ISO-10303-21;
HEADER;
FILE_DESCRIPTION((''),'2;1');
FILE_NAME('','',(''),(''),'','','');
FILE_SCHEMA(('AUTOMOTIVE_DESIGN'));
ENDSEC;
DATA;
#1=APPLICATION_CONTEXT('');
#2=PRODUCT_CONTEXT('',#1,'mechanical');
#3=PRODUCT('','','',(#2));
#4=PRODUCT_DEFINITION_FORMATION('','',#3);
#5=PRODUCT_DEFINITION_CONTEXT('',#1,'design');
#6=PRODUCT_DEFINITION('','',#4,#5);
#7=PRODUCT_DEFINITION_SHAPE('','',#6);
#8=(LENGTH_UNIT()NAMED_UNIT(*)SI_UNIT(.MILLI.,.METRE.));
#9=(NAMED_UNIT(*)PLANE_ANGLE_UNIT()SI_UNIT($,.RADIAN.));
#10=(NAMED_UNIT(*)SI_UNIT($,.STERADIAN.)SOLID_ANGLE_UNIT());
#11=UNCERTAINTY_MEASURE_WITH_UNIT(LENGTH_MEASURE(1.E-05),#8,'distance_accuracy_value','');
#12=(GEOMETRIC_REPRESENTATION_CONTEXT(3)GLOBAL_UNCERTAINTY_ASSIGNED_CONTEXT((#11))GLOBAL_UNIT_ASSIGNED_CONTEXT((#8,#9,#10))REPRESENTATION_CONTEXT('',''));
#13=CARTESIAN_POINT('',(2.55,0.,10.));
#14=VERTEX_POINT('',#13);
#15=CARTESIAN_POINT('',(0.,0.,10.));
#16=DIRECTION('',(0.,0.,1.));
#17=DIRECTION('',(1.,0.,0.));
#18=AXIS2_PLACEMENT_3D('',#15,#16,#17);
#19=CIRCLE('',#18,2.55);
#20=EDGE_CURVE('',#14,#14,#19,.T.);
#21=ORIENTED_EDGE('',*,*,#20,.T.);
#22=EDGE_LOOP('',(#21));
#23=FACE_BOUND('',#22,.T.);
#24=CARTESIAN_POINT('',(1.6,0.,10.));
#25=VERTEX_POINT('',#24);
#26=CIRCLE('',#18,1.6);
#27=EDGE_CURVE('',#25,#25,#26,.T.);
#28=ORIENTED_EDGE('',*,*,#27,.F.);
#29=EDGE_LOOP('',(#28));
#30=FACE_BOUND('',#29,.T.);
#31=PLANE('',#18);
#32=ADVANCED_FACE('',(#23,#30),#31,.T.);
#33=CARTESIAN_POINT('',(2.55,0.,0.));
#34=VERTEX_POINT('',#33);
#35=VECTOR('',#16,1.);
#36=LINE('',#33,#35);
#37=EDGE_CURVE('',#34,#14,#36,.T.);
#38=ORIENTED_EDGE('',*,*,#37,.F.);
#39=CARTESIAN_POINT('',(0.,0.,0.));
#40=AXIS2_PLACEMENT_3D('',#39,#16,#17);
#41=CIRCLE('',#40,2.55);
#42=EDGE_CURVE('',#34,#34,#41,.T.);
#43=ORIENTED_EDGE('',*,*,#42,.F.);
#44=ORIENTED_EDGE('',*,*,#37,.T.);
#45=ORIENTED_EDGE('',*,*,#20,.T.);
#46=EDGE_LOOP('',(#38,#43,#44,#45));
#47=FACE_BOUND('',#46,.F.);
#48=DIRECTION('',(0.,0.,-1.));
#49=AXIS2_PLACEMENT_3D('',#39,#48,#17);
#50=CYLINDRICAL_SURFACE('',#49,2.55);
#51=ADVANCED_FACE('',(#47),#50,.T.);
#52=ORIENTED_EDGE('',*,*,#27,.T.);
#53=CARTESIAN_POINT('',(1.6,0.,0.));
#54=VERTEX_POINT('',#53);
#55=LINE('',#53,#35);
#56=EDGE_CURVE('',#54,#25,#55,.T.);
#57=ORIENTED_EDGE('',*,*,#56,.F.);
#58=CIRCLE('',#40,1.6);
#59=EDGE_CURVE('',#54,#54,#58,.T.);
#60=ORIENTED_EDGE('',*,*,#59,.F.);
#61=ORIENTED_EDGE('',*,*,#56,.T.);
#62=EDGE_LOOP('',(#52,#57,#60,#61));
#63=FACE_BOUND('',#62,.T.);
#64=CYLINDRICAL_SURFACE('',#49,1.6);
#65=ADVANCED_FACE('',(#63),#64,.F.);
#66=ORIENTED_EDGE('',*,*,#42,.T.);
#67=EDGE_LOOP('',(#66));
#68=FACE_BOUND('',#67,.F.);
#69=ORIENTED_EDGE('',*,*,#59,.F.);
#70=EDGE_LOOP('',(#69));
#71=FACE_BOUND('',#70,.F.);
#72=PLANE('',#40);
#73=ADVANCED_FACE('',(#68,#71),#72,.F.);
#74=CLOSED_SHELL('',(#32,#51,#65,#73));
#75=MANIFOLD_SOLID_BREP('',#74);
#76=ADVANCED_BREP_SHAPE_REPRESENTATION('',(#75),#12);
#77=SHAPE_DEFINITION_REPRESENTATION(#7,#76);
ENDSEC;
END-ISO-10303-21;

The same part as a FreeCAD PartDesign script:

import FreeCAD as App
import Part
import Sketcher

V = App.Vector
Q = App.Units.Quantity

doc = App.newDocument("Part")
body = doc.addObject("PartDesign::Body", "Body")

sketch1 = body.newObject("Sketcher::SketchObject", "Sketch")
sketch1.AttachmentSupport = (doc.getObject("XY_Plane"), [""])
sketch1.MapMode = "FlatFace"
sketch1.addGeometry([
    Part.Circle(V(0, 0, 0), V(0, 0, 1), 2.5),
    Part.Circle(V(0, 0, 0), V(0, 0, 1), 1.6),
], False)
sketch1.addConstraint([
    Sketcher.Constraint("Coincident", 0, 3, -1, 1),
    Sketcher.Constraint("Coincident", 1, 3, -1, 1),
    Sketcher.Constraint("Diameter", 0, Q("5.1 mm")),
    Sketcher.Constraint("Diameter", 1, Q("3.2 mm")),
])
pad1 = body.newObject("PartDesign::Pad", "Pad")
pad1.Profile = sketch1
pad1.Length = 10

doc.recompute()
